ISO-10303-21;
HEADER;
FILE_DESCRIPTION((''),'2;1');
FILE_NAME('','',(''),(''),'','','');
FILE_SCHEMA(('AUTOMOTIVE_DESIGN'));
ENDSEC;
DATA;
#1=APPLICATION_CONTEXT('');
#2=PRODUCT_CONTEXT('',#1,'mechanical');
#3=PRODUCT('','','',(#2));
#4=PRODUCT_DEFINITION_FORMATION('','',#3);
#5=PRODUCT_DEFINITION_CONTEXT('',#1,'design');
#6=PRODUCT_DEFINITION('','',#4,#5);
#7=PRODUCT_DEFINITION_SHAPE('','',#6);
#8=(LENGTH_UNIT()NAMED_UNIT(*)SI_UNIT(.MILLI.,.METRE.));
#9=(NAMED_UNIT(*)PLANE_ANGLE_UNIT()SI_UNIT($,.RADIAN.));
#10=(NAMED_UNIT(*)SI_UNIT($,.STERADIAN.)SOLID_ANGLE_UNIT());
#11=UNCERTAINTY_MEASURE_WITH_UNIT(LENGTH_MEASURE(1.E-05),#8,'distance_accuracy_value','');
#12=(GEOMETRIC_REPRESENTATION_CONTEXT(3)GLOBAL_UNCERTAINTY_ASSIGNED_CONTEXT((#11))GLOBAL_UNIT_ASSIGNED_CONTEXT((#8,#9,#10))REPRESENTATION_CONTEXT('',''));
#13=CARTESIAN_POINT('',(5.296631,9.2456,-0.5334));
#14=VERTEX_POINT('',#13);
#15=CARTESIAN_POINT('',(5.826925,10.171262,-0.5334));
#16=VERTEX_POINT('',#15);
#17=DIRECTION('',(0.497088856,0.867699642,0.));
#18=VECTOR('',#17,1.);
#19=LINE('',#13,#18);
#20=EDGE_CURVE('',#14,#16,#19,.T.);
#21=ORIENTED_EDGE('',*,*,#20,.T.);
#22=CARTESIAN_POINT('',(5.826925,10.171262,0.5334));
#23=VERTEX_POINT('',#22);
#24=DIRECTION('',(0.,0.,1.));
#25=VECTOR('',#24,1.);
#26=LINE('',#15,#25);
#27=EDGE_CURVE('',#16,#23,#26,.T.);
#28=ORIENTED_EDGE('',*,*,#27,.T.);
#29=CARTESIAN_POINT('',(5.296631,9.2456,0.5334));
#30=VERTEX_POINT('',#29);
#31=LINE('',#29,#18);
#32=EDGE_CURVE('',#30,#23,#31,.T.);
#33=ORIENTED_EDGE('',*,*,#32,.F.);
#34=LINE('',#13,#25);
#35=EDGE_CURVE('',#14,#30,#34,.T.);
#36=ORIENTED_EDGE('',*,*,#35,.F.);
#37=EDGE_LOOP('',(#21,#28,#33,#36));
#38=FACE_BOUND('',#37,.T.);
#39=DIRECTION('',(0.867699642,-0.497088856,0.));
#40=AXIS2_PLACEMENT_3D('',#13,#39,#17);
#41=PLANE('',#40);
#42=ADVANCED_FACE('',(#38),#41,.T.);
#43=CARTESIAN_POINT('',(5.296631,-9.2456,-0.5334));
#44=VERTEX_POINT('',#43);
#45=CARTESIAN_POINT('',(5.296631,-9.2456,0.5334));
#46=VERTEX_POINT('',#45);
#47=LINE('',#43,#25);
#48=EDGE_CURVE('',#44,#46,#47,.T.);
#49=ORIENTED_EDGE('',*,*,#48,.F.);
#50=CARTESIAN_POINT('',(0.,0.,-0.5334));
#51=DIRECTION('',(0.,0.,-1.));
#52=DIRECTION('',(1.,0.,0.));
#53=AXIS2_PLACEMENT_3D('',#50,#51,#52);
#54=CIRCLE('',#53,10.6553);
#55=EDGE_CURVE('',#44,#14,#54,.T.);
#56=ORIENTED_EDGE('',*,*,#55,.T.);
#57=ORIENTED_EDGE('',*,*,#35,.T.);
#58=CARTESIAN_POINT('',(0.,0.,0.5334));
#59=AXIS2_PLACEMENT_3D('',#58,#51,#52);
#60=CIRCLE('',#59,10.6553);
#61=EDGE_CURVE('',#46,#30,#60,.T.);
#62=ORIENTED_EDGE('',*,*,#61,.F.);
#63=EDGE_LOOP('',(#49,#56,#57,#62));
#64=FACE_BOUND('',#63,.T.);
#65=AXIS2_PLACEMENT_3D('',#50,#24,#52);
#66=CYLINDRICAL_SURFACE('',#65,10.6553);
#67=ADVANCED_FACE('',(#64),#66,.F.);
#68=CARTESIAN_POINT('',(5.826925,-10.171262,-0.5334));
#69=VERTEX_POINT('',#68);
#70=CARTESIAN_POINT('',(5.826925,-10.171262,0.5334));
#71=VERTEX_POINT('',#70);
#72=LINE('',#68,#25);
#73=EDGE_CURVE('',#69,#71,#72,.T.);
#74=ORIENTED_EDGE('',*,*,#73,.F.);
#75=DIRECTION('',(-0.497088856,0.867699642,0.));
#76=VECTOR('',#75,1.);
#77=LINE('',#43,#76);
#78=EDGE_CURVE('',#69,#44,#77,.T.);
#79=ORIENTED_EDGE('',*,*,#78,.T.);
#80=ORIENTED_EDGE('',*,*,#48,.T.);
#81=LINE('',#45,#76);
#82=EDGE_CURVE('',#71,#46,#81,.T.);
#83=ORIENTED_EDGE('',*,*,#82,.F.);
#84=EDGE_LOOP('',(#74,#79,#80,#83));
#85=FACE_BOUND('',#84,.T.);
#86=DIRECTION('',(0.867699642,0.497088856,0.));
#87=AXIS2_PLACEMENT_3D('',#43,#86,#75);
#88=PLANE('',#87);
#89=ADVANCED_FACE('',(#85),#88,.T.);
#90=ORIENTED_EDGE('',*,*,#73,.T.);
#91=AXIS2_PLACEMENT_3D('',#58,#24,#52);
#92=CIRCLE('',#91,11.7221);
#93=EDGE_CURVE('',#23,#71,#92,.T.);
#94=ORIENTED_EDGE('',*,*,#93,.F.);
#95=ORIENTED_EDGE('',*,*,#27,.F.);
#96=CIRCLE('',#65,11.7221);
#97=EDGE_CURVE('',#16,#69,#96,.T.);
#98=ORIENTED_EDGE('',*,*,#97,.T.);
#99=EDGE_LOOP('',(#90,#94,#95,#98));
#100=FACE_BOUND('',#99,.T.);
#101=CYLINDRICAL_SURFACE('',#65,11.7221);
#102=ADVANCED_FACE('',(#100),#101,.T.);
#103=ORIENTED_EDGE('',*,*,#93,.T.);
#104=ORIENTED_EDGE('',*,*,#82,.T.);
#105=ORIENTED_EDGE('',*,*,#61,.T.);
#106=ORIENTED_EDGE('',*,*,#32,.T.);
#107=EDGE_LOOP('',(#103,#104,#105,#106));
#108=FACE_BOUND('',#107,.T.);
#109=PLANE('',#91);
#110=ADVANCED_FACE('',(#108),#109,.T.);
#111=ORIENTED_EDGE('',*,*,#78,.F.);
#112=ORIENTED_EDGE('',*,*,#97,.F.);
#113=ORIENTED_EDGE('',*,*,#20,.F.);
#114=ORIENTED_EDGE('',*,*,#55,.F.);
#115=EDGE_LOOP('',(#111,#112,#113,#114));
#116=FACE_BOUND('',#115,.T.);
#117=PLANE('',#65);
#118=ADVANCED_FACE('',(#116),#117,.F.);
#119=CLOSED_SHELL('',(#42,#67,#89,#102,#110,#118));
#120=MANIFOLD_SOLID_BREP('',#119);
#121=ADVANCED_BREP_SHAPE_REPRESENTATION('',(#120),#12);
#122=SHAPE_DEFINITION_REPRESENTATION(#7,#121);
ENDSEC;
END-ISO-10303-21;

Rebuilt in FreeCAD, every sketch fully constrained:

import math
import FreeCAD as App
import Part
import Sketcher
Q = App.Units.Quantity

doc = App.newDocument("Part")
body = doc.addObject("PartDesign::Body", "Body")

sketch1 = body.newObject("Sketcher::SketchObject", "Sketch")
sketch1.AttachmentSupport = (doc.getObject("XY_Plane"), [""])
sketch1.MapMode = "FlatFace"
sketch1.addGeometry(Part.LineSegment(App.Vector(5.8, -10.2, 0), App.Vector(5.3, -9.2, 0)), False)
sketch1.addGeometry(Part.ArcOfCircle(Part.Circle(App.Vector(0, 0, 0), App.Vector(0, 0, 1), 10.7), math.radians(60), math.radians(300)), False)
sketch1.addGeometry(Part.LineSegment(App.Vector(5.3, 9.2, 0), App.Vector(5.8, 10.2, 0)), False)
sketch1.addGeometry(Part.ArcOfCircle(Part.Circle(App.Vector(0, 0, 0), App.Vector(0, 0, 1), 11.7), math.radians(60), math.radians(300)), False)
sketch1.addConstraint(Sketcher.Constraint("Coincident", 0, 2, 1, 2))
sketch1.addConstraint(Sketcher.Constraint("Coincident", 1, 1, 2, 1))
sketch1.addConstraint(Sketcher.Constraint("Coincident", 2, 2, 3, 1))
sketch1.addConstraint(Sketcher.Constraint("Coincident", 3, 2, 0, 1))
sketch1.addConstraint(Sketcher.Constraint("Coincident", 1, 3, -1, 1))
sketch1.addConstraint(Sketcher.Constraint("Coincident", 3, 3, -1, 1))
sketch1.addConstraint(Sketcher.Constraint("Vertical", 0, 2, 1, 1))
sketch1.addConstraint(Sketcher.Constraint("Vertical", 2, 2, 3, 2))
sketch1.addConstraint(Sketcher.Constraint("Radius", 1, Q("0.4195 in")))
sketch1.addConstraint(Sketcher.Constraint("Radius", 3, Q("0.4615 in")))
sketch1.addConstraint(Sketcher.Constraint("DistanceY", 0, 2, -1, 1, Q("0.364 in")))
sketch1.addConstraint(Sketcher.Constraint("DistanceY", -1, 1, 2, 2, Q("10.171262 mm")))
pad1 = body.newObject("PartDesign::Pad", "Pad")
pad1.Profile = sketch1
pad1.Type = "TwoLengths"
pad1.Length = Q("0.021 in")
pad1.Length2 = Q("0.021 in")

doc.recompute()
